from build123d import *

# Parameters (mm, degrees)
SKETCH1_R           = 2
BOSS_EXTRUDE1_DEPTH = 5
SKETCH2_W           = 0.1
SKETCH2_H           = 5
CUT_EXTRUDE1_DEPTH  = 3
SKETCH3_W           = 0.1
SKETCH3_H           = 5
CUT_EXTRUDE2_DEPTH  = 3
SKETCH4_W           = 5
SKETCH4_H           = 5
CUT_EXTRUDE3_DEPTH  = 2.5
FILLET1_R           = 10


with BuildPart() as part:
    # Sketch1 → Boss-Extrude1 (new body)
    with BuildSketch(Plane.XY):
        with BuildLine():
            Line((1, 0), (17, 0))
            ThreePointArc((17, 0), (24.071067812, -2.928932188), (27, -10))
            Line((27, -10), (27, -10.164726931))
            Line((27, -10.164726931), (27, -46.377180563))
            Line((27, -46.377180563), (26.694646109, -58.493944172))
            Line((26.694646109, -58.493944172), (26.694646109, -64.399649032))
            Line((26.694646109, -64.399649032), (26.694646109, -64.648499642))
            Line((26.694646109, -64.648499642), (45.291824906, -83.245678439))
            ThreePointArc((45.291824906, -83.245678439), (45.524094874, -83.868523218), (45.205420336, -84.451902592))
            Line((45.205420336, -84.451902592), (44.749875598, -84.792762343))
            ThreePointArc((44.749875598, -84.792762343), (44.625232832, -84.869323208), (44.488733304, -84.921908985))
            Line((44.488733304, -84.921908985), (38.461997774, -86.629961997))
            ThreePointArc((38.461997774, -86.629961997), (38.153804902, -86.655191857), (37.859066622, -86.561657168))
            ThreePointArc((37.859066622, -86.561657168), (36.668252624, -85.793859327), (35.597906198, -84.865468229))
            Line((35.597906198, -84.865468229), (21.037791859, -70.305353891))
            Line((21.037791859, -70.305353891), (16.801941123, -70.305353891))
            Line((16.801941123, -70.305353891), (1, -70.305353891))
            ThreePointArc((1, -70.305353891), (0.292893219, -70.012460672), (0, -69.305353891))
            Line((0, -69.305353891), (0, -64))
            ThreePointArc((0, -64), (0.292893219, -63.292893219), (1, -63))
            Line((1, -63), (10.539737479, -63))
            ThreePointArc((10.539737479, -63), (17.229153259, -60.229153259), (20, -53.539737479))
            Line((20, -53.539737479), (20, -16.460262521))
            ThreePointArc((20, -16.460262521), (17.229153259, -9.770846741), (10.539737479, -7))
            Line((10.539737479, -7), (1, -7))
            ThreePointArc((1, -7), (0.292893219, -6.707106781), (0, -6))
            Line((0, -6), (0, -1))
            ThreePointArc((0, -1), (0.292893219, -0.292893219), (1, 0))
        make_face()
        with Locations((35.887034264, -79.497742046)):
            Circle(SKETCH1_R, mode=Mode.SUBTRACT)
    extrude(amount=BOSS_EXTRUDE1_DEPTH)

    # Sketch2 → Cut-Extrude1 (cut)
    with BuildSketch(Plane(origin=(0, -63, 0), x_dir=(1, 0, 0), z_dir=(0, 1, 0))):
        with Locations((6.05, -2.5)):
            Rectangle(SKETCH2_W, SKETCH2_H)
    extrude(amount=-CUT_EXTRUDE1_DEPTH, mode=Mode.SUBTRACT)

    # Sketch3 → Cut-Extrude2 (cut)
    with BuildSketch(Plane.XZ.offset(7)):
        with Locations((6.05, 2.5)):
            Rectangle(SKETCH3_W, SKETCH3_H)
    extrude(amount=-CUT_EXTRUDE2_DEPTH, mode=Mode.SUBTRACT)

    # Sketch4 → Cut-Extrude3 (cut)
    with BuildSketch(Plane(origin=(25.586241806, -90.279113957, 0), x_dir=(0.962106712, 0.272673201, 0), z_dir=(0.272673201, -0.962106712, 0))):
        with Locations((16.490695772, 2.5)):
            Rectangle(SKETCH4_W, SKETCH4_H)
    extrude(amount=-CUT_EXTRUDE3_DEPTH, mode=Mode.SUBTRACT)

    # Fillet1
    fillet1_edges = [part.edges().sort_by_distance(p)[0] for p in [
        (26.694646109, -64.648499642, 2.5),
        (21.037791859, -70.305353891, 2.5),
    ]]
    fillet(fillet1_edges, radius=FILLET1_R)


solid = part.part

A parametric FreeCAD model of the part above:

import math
import FreeCAD as App
import Part
import Sketcher
Q = App.Units.Quantity


def edges_at(feature, points):
    """Names of the edges that pass closest to the given points."""
    edges = feature.Shape.Edges
    near = lambda p: min(range(len(edges)), key=lambda i: edges[i].distToShape(Part.Vertex(*p))[0])
    return sorted({f"Edge{near(p) + 1}" for p in points})


def add_polygon(sketch, points):
    """Adds a closed chain of lines whose ends are joined by coincident constraints."""
    first, n = sketch.GeometryCount, len(points)
    for a, b in zip(points, points[1:] + points[:1]):
        sketch.addGeometry(Part.LineSegment(App.Vector(*a, 0), App.Vector(*b, 0)), False)
    for i in range(n):
        sketch.addConstraint(Sketcher.Constraint("Coincident", first + i, 2, first + (i + 1) % n, 1))

doc = App.newDocument("Part")
body = doc.addObject("PartDesign::Body", "Body")

sketch1 = doc.addObject("Sketcher::SketchObject", "Sketch")
body.addObject(sketch1)
sketch1.AttachmentSupport = (doc.XY_Plane, [""])
sketch1.MapMode = "FlatFace"
sketch1.addGeometry([
    Part.LineSegment(App.Vector(17, 0, 0), App.Vector(1, 0, 0)),
    Part.ArcOfCircle(Part.Circle(App.Vector(1, -1, 0), App.Vector(0, 0, 1), 1), math.radians(90), math.radians(180)),
    Part.LineSegment(App.Vector(0, -1, 0), App.Vector(0, -6, 0)),
    Part.ArcOfCircle(Part.Circle(App.Vector(1, -6, 0), App.Vector(0, 0, 1), 1), math.radians(-180), math.radians(-90)),
    Part.LineSegment(App.Vector(1, -7, 0), App.Vector(10.539737, -7, 0)),
    Part.ArcOfCircle(Part.Circle(App.Vector(10.539737, -16.460263, 0), App.Vector(0, 0, 1), 9.460263), math.radians(0), math.radians(90)),
    Part.LineSegment(App.Vector(20, -16.460263, 0), App.Vector(20, -53.539737, 0)),
    Part.ArcOfCircle(Part.Circle(App.Vector(10.539737, -53.539737, 0), App.Vector(0, 0, 1), 9.460263), math.radians(-90), math.radians(0)),
    Part.LineSegment(App.Vector(10.539737, -63, 0), App.Vector(1, -63, 0)),
    Part.ArcOfCircle(Part.Circle(App.Vector(1, -64, 0), App.Vector(0, 0, 1), 1), math.radians(90), math.radians(180)),
    Part.LineSegment(App.Vector(0, -64, 0), App.Vector(0, -69.305354, 0)),
    Part.ArcOfCircle(Part.Circle(App.Vector(1, -69.305354, 0), App.Vector(0, 0, 1), 1), math.radians(-180), math.radians(-90)),
    Part.LineSegment(App.Vector(1, -70.305354, 0), App.Vector(21.037792, -70.305354, 0)),
    Part.LineSegment(App.Vector(21.037792, -70.305354, 0), App.Vector(35.597906, -84.865468, 0)),
    Part.ArcOfCircle(Part.Circle(App.Vector(42.668974, -77.7944, 0), App.Vector(0, 0, 1), 10), math.radians(-135), math.radians(-118.750129)),
    Part.ArcOfCircle(Part.Circle(App.Vector(38.243859, -85.860277, 0), App.Vector(0, 0, 1), 0.8), math.radians(-118.750129), math.radians(-74.1766)),
    Part.LineSegment(App.Vector(38.461998, -86.629962, 0), App.Vector(44.488733, -84.921909, 0)),
    Part.ArcOfCircle(Part.Circle(App.Vector(44.270595, -84.152224, 0), App.Vector(0, 0, 1), 0.8), math.radians(-74.1766), math.radians(-53.194456)),
    Part.LineSegment(App.Vector(44.749876, -84.792762, 0), App.Vector(45.20542, -84.451903, 0)),
    Part.ArcOfCircle(Part.Circle(App.Vector(44.726139, -83.811364, 0), App.Vector(0, 0, 1), 0.8), math.radians(-53.194457), math.radians(45)),
    Part.LineSegment(App.Vector(45.291825, -83.245678, 0), App.Vector(26.694646, -64.6485, 0)),
    Part.LineSegment(App.Vector(26.694646, -64.6485, 0), App.Vector(26.694646, -58.493944, 0)),
    Part.LineSegment(App.Vector(26.694646, -58.493944, 0), App.Vector(27, -46.377181, 0)),
    Part.LineSegment(App.Vector(27, -46.377181, 0), App.Vector(27, -10, 0)),
    Part.ArcOfCircle(Part.Circle(App.Vector(17, -10, 0), App.Vector(0, 0, 1), 10), math.radians(0), math.radians(90)),
    Part.Circle(App.Vector(35.887034, -79.497742, 0), App.Vector(0, 0, 1), 2),
], False)
sketch1.addConstraint([
    Sketcher.Constraint("Tangent", 0, 2, 1, 1),
    Sketcher.Constraint("Tangent", 1, 2, 2, 1),
    Sketcher.Constraint("Tangent", 2, 2, 3, 1),
    Sketcher.Constraint("Tangent", 3, 2, 4, 1),
    Sketcher.Constraint("Tangent", 4, 2, 5, 2),
    Sketcher.Constraint("Tangent", 5, 1, 6, 1),
    Sketcher.Constraint("Tangent", 6, 2, 7, 2),
    Sketcher.Constraint("Tangent", 7, 1, 8, 1),
    Sketcher.Constraint("Tangent", 8, 2, 9, 1),
    Sketcher.Constraint("Tangent", 9, 2, 10, 1),
    Sketcher.Constraint("Tangent", 10, 2, 11, 1),
    Sketcher.Constraint("Tangent", 11, 2, 12, 1),
    Sketcher.Constraint("Coincident", 12, 2, 13, 1),
    Sketcher.Constraint("Tangent", 13, 2, 14, 1),
    Sketcher.Constraint("Tangent", 14, 2, 15, 1),
    Sketcher.Constraint("Tangent", 15, 2, 16, 1),
    Sketcher.Constraint("Tangent", 16, 2, 17, 1),
    Sketcher.Constraint("Tangent", 17, 2, 18, 1),
    Sketcher.Constraint("Tangent", 18, 2, 19, 1),
    Sketcher.Constraint("Tangent", 19, 2, 20, 1),
    Sketcher.Constraint("Coincident", 20, 2, 21, 1),
    Sketcher.Constraint("Coincident", 21, 2, 22, 1),
    Sketcher.Constraint("Coincident", 22, 2, 23, 1),
    Sketcher.Constraint("Tangent", 23, 2, 24, 1),
    Sketcher.Constraint("Tangent", 24, 2, 0, 1),
    Sketcher.Constraint("Horizontal", 0),
    Sketcher.Constraint("Vertical", 2),
    Sketcher.Constraint("Horizontal", 4),
    Sketcher.Constraint("Vertical", 6),
    Sketcher.Constraint("Horizontal", 8),
    Sketcher.Constraint("Vertical", 10),
    Sketcher.Constraint("Horizontal", 12),
    Sketcher.Constraint("Vertical", 21),
    Sketcher.Constraint("Vertical", 23),
    Sketcher.Constraint("Equal", 1, 3),
    Sketcher.Constraint("Equal", 5, 7),
    Sketcher.Constraint("Equal", 3, 9),
    Sketcher.Constraint("Equal", 9, 11),
    Sketcher.Constraint("Equal", 15, 17),
    Sketcher.Constraint("Equal", 17, 19),
    Sketcher.Constraint("Equal", 14, 24),
    Sketcher.Constraint("PointOnObject", 0, 2, -1),
    Sketcher.Constraint("PointOnObject", 1, 2, -2),
    Sketcher.Constraint("PointOnObject", 9, 2, -2),
    Sketcher.Constraint("Parallel", 13, 20),
    Sketcher.Constraint("Diameter", 25, Q("4 mm")),
    Sketcher.Constraint("Radius", 1, Q("1 mm")),
    Sketcher.Constraint("Radius", 14, Q("10 mm")),
    Sketcher.Constraint("Radius", 15, Q("0.8 mm")),
    Sketcher.Constraint("DistanceX", 0, 2, 0, 1, Q("16 mm")),
    Sketcher.Constraint("DistanceY", 2, 2, 2, 1, Q("5 mm")),
    Sketcher.Constraint("Angle", 13, Q("-45 deg")),
    Sketcher.Constraint("DistanceY", 9, 3, -1, 1, Q("64 mm")),
    Sketcher.Constraint("DistanceX", -1, 1, 5, 1, Q("20 mm")),
    Sketcher.Constraint("Radius", 5, Q("9.460263 mm")),
    Sketcher.Constraint("DistanceX", 12, 1, 12, 2, Q("20.037792 mm")),
    Sketcher.Constraint("DistanceY", 23, 1, 23, 2, Q("36.377181 mm")),
    Sketcher.Constraint("DistanceY", 14, 3, -1, 1, Q("77.7944 mm")),
    Sketcher.Constraint("DistanceY", 20, 2, -1, 1, Q("64.6485 mm")),
    Sketcher.Constraint("DistanceY", 15, 2, 19, 3, Q("2.818598 mm")),
    Sketcher.Constraint("DistanceY", 17, 2, 19, 3, Q("0.981398 mm")),
    Sketcher.Constraint("Distance", 13, Q("20.591111 mm")),
    Sketcher.Constraint("Distance", 18, Q("0.568952 mm")),
    Sketcher.Constraint("Distance", 22, Q("12.120611 mm")),
    Sketcher.Constraint("DistanceY", 21, 1, 21, 2, Q("6.154555 mm")),
    Sketcher.Constraint("DistanceX", -1, 1, 15, 3, Q("38.243859 mm")),
    Sketcher.Constraint("DistanceX", 25, 3, 14, 3, Q("6.78194 mm")),
    Sketcher.Constraint("DistanceY", 25, 3, 14, 3, Q("1.703342 mm")),
])
pad1 = doc.addObject("PartDesign::Pad", "Pad")
body.addObject(pad1)
pad1.Profile = sketch1
pad1.Length = 5

sketch2 = doc.addObject("Sketcher::SketchObject", "Sketch001")
body.addObject(sketch2)
sketch2.AttachmentSupport = (doc.XZ_Plane, [""])
sketch2.MapMode = "FlatFace"
sketch2.AttachmentOffset = App.Placement(App.Vector(0, 0, 63), App.Rotation())
add_polygon(sketch2, [(6, 0), (6, 5), (6.1, 5), (6.1, 0)])
sketch2.addConstraint([
    Sketcher.Constraint("Vertical", 0),
    Sketcher.Constraint("Horizontal", 1),
    Sketcher.Constraint("Vertical", 2),
    Sketcher.Constraint("Horizontal", 3),
    Sketcher.Constraint("PointOnObject", 2, 2, -1),
    Sketcher.Constraint("DistanceY", 0, 1, 0, 2, Q("5 mm")),
    Sketcher.Constraint("DistanceX", 1, 1, 1, 2, Q("0.1 mm")),
    Sketcher.Constraint("DistanceX", -1, 1, 0, 2, Q("6 mm")),
])
pocket1 = doc.addObject("PartDesign::Pocket", "Pocket")
body.addObject(pocket1)
pocket1.Profile = sketch2
pocket1.Length = 3
pocket1.Reversed = True

sketch3 = doc.addObject("Sketcher::SketchObject", "Sketch002")
body.addObject(sketch3)
sketch3.AttachmentSupport = (doc.XZ_Plane, [""])
sketch3.MapMode = "FlatFace"
sketch3.AttachmentOffset = App.Placement(App.Vector(0, 0, 7), App.Rotation())
add_polygon(sketch3, [(6, 5), (6, 0), (6.1, 0), (6.1, 5)])
sketch3.addConstraint([
    Sketcher.Constraint("Vertical", 0),
    Sketcher.Constraint("Horizontal", 1),
    Sketcher.Constraint("Vertical", 2),
    Sketcher.Constraint("Horizontal", 3),
    Sketcher.Constraint("PointOnObject", 0, 2, -1),
    Sketcher.Constraint("DistanceY", 0, 2, 0, 1, Q("5 mm")),
    Sketcher.Constraint("DistanceX", 1, 1, 1, 2, Q("0.1 mm")),
    Sketcher.Constraint("DistanceX", -1, 1, 0, 2, Q("6 mm")),
])
pocket2 = doc.addObject("PartDesign::Pocket", "Pocket001")
body.addObject(pocket2)
pocket2.Profile = sketch3
pocket2.Length = 3

sketch4 = doc.addObject("Sketcher::SketchObject", "Sketch003")
body.addObject(sketch4)
sketch4.Placement = App.Placement(App.Vector(25.586242, -90.279114, 0), App.Rotation(App.Vector(0.962106712, 0.272673201, 0), App.Vector(0, 0, 1), App.Vector(0.272673201, -0.962106712, 0), "ZXY"))
add_polygon(sketch4, [(13.990696, 5), (13.990696, 0), (18.990696, 0), (18.990696, 5)])
sketch4.addConstraint([
    Sketcher.Constraint("Vertical", 0),
    Sketcher.Constraint("Horizontal", 1),
    Sketcher.Constraint("Vertical", 2),
    Sketcher.Constraint("Horizontal", 3),
    Sketcher.Constraint("PointOnObject", 0, 2, -1),
    Sketcher.Constraint("Equal", 3, 0),
    Sketcher.Constraint("DistanceX", 1, 1, 1, 2, Q("5 mm")),
    Sketcher.Constraint("DistanceX", -1, 1, 0, 2, Q("13.990696 mm")),
])
pocket3 = doc.addObject("PartDesign::Pocket", "Pocket002")
body.addObject(pocket3)
pocket3.Profile = sketch4
pocket3.Length = 2.5
doc.recompute()

fillet = doc.addObject("PartDesign::Fillet", "Fillet")
body.addObject(fillet)
fillet.Base = (pocket3, edges_at(pocket3, [(26.695, -64.648, 2.5), (21.038, -70.305, 2.5)]))
fillet.Radius = 10

doc.recompute()
